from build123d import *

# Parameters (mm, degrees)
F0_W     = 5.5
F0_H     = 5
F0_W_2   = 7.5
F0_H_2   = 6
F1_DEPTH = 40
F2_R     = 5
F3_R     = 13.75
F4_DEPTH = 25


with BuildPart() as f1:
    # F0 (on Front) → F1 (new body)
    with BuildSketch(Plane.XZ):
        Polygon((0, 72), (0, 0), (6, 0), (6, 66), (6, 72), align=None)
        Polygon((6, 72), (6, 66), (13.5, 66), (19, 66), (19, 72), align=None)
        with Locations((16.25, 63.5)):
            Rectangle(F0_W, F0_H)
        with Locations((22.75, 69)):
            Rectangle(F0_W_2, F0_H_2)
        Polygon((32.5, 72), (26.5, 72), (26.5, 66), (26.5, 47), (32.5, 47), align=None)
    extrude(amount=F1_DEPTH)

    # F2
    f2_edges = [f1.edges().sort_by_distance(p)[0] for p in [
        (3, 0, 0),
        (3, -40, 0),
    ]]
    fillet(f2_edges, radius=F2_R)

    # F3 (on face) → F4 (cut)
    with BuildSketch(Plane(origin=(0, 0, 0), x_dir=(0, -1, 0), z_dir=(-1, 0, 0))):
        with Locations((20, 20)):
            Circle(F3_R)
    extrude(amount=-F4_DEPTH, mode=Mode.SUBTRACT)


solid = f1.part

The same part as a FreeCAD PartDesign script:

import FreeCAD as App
import Part
import Sketcher
from FreeCAD import Vector
Q = App.Units.Quantity


def edges_at(feature, points):
    """Names of the edges that pass closest to the given points."""
    edges = feature.Shape.Edges
    near = lambda p: min(range(len(edges)), key=lambda i: edges[i].distToShape(Part.Vertex(*p))[0])
    return sorted({f"Edge{near(p) + 1}" for p in points})

doc = App.newDocument("Part")
params = doc.addObject("Spreadsheet::Sheet", "Params")
for row, (alias, value) in enumerate([
    ("sketch1_width", "6 mm"),
    ("sketch1_height", "72 mm"),
    ("sketch1_height2", "66 mm"),
    ("sketch1_height3", "5 mm"),
    ("sketch1_height4", "19 mm"),
    ("pad1_length", "40 mm"),
    ("fillet_radius", "5 mm"),
    ("sketch2_diameter", "27.5 mm"),
    ("pocket1_length", "25 mm"),
], start=1):
    params.set(f"A{row}", alias)
    params.set(f"B{row}", "=" + value)
    params.setAlias(f"B{row}", alias)

body = doc.addObject("PartDesign::Body", "Body")

sketch1 = body.newObject("Sketcher::SketchObject", "Sketch")
sketch1.AttachmentSupport = (doc.getObject("XZ_Plane"), [""])
sketch1.MapMode = "FlatFace"
sketch1.addGeometry([
    Part.LineSegment(Vector(0, 72, 0), Vector(0, 0, 0)),
    Part.LineSegment(Vector(0, 0, 0), Vector(6, 0, 0)),
    Part.LineSegment(Vector(6, 0, 0), Vector(6, 66, 0)),
    Part.LineSegment(Vector(6, 66, 0), Vector(14, 66, 0)),
    Part.LineSegment(Vector(14, 66, 0), Vector(14, 61, 0)),
    Part.LineSegment(Vector(14, 61, 0), Vector(19, 61, 0)),
    Part.LineSegment(Vector(19, 61, 0), Vector(19, 66, 0)),
    Part.LineSegment(Vector(19, 66, 0), Vector(26, 66, 0)),
    Part.LineSegment(Vector(26, 66, 0), Vector(26, 47, 0)),
    Part.LineSegment(Vector(26, 47, 0), Vector(32, 47, 0)),
    Part.LineSegment(Vector(32, 47, 0), Vector(32, 72, 0)),
    Part.LineSegment(Vector(32, 72, 0), Vector(0, 72, 0)),
], False)
sketch1.addConstraint([
    Sketcher.Constraint("Coincident", 0, 2, 1, 1),
    Sketcher.Constraint("Coincident", 1, 2, 2, 1),
    Sketcher.Constraint("Coincident", 2, 2, 3, 1),
    Sketcher.Constraint("Coincident", 3, 2, 4, 1),
    Sketcher.Constraint("Coincident", 4, 2, 5, 1),
    Sketcher.Constraint("Coincident", 5, 2, 6, 1),
    Sketcher.Constraint("Coincident", 6, 2, 7, 1),
    Sketcher.Constraint("Coincident", 7, 2, 8, 1),
    Sketcher.Constraint("Coincident", 8, 2, 9, 1),
    Sketcher.Constraint("Coincident", 9, 2, 10, 1),
    Sketcher.Constraint("Coincident", 10, 2, 11, 1),
    Sketcher.Constraint("Coincident", 11, 2, 0, 1),
    Sketcher.Constraint("Vertical", 0),
    Sketcher.Constraint("Horizontal", 1),
    Sketcher.Constraint("Vertical", 2),
    Sketcher.Constraint("Horizontal", 3),
    Sketcher.Constraint("Vertical", 4),
    Sketcher.Constraint("Horizontal", 5),
    Sketcher.Constraint("Vertical", 6),
    Sketcher.Constraint("Horizontal", 7),
    Sketcher.Constraint("Vertical", 8),
    Sketcher.Constraint("Horizontal", 9),
    Sketcher.Constraint("Vertical", 10),
    Sketcher.Constraint("Horizontal", 11),
    Sketcher.Constraint("Coincident", 0, 2, -1, 1),
    Sketcher.Constraint("Horizontal", 3, 2, 6, 2),
    Sketcher.Constraint("Equal", 3, 7),
    Sketcher.Constraint("Equal", 1, 9),
    Sketcher.Constraint("DistanceX", 1, 1, 1, 2, Q("6 mm")),
    Sketcher.Constraint("DistanceY", 0, 2, 0, 1, Q("72 mm")),
    Sketcher.Constraint("DistanceY", 2, 1, 2, 2, Q("66 mm")),
    Sketcher.Constraint("DistanceY", 4, 2, 4, 1, Q("5 mm")),
    Sketcher.Constraint("DistanceY", 8, 2, 8, 1, Q("19 mm")),
    Sketcher.Constraint("DistanceX", 3, 1, 3, 2, Q("7.5 mm")),
    Sketcher.Constraint("DistanceX", 5, 1, 5, 2, Q("5.5 mm")),
])
sketch1.setExpression("Constraints[28]", "Params.sketch1_width")
sketch1.setExpression("Constraints[29]", "Params.sketch1_height")
sketch1.setExpression("Constraints[30]", "Params.sketch1_height2")
sketch1.setExpression("Constraints[31]", "Params.sketch1_height3")
sketch1.setExpression("Constraints[32]", "Params.sketch1_height4")
pad1 = body.newObject("PartDesign::Pad", "Pad")
pad1.Profile = sketch1
pad1.setExpression("Length", "Params.pad1_length")
doc.recompute()

fillet = body.newObject("PartDesign::Fillet", "Fillet")
fillet.Base = (pad1, edges_at(pad1, [(3, 0, 0), (3, -40, 0)]))
fillet.setExpression("Radius", "Params.fillet_radius")

sketch2 = body.newObject("Sketcher::SketchObject", "Sketch001")
sketch2.AttachmentSupport = (doc.getObject("YZ_Plane"), [""])
sketch2.MapMode = "FlatFace"
sketch2.addGeometry(Part.Circle(Vector(-20, 20, 0), Vector(0, 0, 1), 14), False)
sketch2.addConstraint([
    Sketcher.Constraint("Diameter", 0, Q("27.5 mm")),
    Sketcher.Constraint("DistanceX", 0, 3, -1, 1, Q("20 mm")),
    Sketcher.Constraint("DistanceY", -1, 1, 0, 3, Q("20 mm")),
])
sketch2.setExpression("Constraints[0]", "Params.sketch2_diameter")
pocket1 = body.newObject("PartDesign::Pocket", "Pocket")
pocket1.Profile = sketch2
pocket1.setExpression("Length", "Params.pocket1_length")
pocket1.Reversed = True

doc.recompute()
